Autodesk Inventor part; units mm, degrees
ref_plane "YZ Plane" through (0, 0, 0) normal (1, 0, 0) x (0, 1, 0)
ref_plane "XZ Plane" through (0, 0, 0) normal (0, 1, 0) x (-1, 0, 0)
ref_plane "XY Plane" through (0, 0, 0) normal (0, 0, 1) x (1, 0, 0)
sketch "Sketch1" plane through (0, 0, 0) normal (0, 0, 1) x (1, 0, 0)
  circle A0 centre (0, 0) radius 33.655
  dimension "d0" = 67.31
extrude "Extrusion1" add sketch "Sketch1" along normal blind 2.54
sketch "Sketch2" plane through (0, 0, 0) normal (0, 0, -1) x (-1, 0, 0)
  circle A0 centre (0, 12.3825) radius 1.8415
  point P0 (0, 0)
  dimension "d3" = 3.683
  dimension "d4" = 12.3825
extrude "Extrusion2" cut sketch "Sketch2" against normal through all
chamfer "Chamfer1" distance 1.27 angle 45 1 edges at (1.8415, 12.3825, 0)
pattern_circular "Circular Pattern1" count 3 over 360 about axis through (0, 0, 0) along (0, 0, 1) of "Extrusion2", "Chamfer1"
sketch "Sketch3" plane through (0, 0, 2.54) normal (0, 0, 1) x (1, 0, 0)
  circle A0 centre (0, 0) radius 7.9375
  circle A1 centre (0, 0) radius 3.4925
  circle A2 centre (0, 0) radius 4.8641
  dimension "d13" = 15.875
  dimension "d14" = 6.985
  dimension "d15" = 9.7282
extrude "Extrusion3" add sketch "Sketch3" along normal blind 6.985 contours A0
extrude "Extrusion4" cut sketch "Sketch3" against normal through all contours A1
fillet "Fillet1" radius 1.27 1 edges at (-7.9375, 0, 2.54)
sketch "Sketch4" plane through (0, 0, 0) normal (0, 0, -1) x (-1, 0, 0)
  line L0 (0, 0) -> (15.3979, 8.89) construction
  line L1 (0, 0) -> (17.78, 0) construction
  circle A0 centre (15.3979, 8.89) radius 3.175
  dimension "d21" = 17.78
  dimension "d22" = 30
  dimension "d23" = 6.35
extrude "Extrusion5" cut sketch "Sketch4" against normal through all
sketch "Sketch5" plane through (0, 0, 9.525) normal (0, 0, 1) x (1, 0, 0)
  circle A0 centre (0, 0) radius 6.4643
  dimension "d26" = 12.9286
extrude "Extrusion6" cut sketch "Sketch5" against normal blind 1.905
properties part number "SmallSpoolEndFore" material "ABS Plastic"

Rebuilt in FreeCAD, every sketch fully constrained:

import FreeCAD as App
import Part
import Sketcher
from FreeCAD import Vector
Q = App.Units.Quantity


def edges_at(feature, points):
    """Names of the edges that pass closest to the given points."""
    edges = feature.Shape.Edges
    near = lambda p: min(range(len(edges)), key=lambda i: edges[i].distToShape(Part.Vertex(*p))[0])
    return sorted({f"Edge{near(p) + 1}" for p in points})

doc = App.newDocument("Part")
body = doc.addObject("PartDesign::Body", "Body")

sketch1 = body.newObject("Sketcher::SketchObject", "Sketch")
sketch1.AttachmentSupport = (doc.getObject("XY_Plane"), [""])
sketch1.MapMode = "FlatFace"
sketch1.addGeometry(Part.Circle(Vector(0, 0, 0), Vector(0, 0, 1), 34), False)
sketch1.addConstraint([
    Sketcher.Constraint("Coincident", 0, 3, -1, 1),
    Sketcher.Constraint("Diameter", 0, Q("2.65 in")),
])
pad1 = body.newObject("PartDesign::Pad", "Pad")
pad1.Profile = sketch1
pad1.Length = Q("0.1 in")

sketch2 = body.newObject("Sketcher::SketchObject", "Sketch001")
sketch2.AttachmentSupport = (doc.getObject("XY_Plane"), [""])
sketch2.MapMode = "FlatFace"
sketch2.addGeometry(Part.Circle(Vector(0, 12.4, 0), Vector(0, 0, 1), 1.8), False)
sketch2.addConstraint([
    Sketcher.Constraint("PointOnObject", 0, 3, -2),
    Sketcher.Constraint("Diameter", 0, Q("0.145 in")),
    Sketcher.Constraint("DistanceY", -1, 1, 0, 3, Q("0.4875 in")),
])
pocket1 = body.newObject("PartDesign::Pocket", "Pocket")
pocket1.Profile = sketch2
pocket1.Type = "ThroughAll"
pocket1.Reversed = True
doc.recompute()

chamfer = body.newObject("PartDesign::Chamfer", "Chamfer")
chamfer.Base = (pocket1, edges_at(pocket1, [(1.841, 12.383, 0)]))
chamfer.Size = Q("0.05 in")
doc.recompute()

polarpattern = body.newObject("PartDesign::PolarPattern", "PolarPattern")
polarpattern.Originals = [pocket1, chamfer]
polarpattern.Axis = (doc.getObject("Z_Axis"), [""])
polarpattern.Angle = 360
polarpattern.Occurrences = 3
body.Tip = polarpattern

sketch3 = body.newObject("Sketcher::SketchObject", "Sketch002")
sketch3.AttachmentSupport = (doc.getObject("XY_Plane"), [""])
sketch3.MapMode = "FlatFace"
sketch3.AttachmentOffset = App.Placement(Vector(0, 0, 0.1 * 25.4), App.Rotation())
sketch3.addGeometry([
    Part.Circle(Vector(0, 0, 0), Vector(0, 0, 1), 7.9),
    Part.Circle(Vector(0, 0, 0), Vector(0, 0, 1), 4.9),
], False)
sketch3.addConstraint([
    Sketcher.Constraint("Coincident", 0, 3, -1, 1),
    Sketcher.Constraint("Coincident", 1, 3, -1, 1),
    Sketcher.Constraint("Diameter", 0, Q("0.625 in")),
    Sketcher.Constraint("Diameter", 1, Q("0.383 in")),
])
pad2 = body.newObject("PartDesign::Pad", "Pad001")
pad2.Profile = sketch3
pad2.Length = Q("0.275 in")

sketch4 = body.newObject("Sketcher::SketchObject", "Sketch003")
sketch4.AttachmentSupport = (doc.getObject("XY_Plane"), [""])
sketch4.MapMode = "FlatFace"
sketch4.AttachmentOffset = App.Placement(Vector(0, 0, 0.1 * 25.4), App.Rotation())
sketch4.addGeometry(Part.Circle(Vector(0, 0, 0), Vector(0, 0, 1), 3.5), False)
sketch4.addConstraint([
    Sketcher.Constraint("Coincident", 0, 3, -1, 1),
    Sketcher.Constraint("Diameter", 0, Q("0.275 in")),
])
pocket2 = body.newObject("PartDesign::Pocket", "Pocket001")
pocket2.Profile = sketch4
pocket2.Type = "ThroughAll"
doc.recompute()

fillet = body.newObject("PartDesign::Fillet", "Fillet")
fillet.Base = (pocket2, edges_at(pocket2, [(-7.938, 0, 2.54)]))
fillet.Radius = Q("0.05 in")

sketch5 = body.newObject("Sketcher::SketchObject", "Sketch004")
sketch5.AttachmentSupport = (doc.getObject("XY_Plane"), [""])
sketch5.MapMode = "FlatFace"
sketch5.addGeometry(Part.Circle(Vector(-15.4, 8.9, 0), Vector(0, 0, 1), 3.2), False)
sketch5.addConstraint([
    Sketcher.Constraint("Diameter", 0, Q("0.25 in")),
    Sketcher.Constraint("DistanceY", -1, 1, 0, 3, Q("0.35 in")),
    Sketcher.Constraint("DistanceX", 0, 3, -1, 1, 15.398),
])
pocket3 = body.newObject("PartDesign::Pocket", "Pocket002")
pocket3.Profile = sketch5
pocket3.Type = "ThroughAll"
pocket3.Reversed = True

sketch6 = body.newObject("Sketcher::SketchObject", "Sketch005")
sketch6.AttachmentSupport = (doc.getObject("XY_Plane"), [""])
sketch6.MapMode = "FlatFace"
sketch6.AttachmentOffset = App.Placement(Vector(0, 0, 0.375 * 25.4), App.Rotation())
sketch6.addGeometry(Part.Circle(Vector(0, 0, 0), Vector(0, 0, 1), 6), False)
sketch6.addConstraint([
    Sketcher.Constraint("Coincident", 0, 3, -1, 1),
    Sketcher.Constraint("Diameter", 0, Q("0.509 in")),
])
pocket4 = body.newObject("PartDesign::Pocket", "Pocket003")
pocket4.Profile = sketch6
pocket4.Length = Q("0.075 in")

doc.recompute()
